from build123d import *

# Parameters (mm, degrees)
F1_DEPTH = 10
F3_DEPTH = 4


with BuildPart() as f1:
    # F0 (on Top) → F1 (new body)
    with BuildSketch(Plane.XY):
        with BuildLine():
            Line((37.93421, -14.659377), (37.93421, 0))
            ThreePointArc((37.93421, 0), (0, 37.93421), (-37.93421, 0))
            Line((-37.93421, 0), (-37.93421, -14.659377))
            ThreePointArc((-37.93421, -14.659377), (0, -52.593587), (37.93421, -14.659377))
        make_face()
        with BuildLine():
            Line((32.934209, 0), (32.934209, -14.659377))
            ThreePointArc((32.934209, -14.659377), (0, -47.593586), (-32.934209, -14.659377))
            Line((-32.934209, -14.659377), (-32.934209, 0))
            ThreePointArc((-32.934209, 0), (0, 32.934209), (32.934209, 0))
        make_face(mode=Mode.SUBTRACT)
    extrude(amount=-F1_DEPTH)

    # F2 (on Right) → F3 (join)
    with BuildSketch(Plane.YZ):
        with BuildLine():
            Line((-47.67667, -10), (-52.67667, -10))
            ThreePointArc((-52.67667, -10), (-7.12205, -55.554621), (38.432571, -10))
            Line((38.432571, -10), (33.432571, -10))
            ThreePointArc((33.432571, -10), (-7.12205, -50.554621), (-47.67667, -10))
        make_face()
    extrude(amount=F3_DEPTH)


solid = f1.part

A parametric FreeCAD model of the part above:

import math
import FreeCAD as App
import Part
import Sketcher

V = App.Vector

doc = App.newDocument("Part")
body = doc.addObject("PartDesign::Body", "Body")

# Sketch on XY plane
sketch1 = doc.addObject("Sketcher::SketchObject", "Sketch")
body.addObject(sketch1)
sketch1.AttachmentSupport = (doc.XY_Plane, [""])
sketch1.MapMode = "FlatFace"
sketch1.addGeometry([
    Part.LineSegment(V(38, -15, 0), V(38, 0, 0)),  # 0
    Part.ArcOfCircle(Part.Circle(V(0, 0, 0), V(0, 0, 1), 38), math.radians(0), math.radians(180)),  # 1
    Part.LineSegment(V(-38, 0, 0), V(-38, -15, 0)),  # 2
    Part.ArcOfCircle(Part.Circle(V(0, -15, 0), V(0, 0, 1), 38), math.radians(180), math.radians(360)),  # 3
    Part.ArcOfCircle(Part.Circle(V(0, 0, 0), V(0, 0, 1), 33), math.radians(0), math.radians(180)),  # 4
    Part.LineSegment(V(33, 0, 0), V(33, -15, 0)),  # 5
    Part.ArcOfCircle(Part.Circle(V(0, -15, 0), V(0, 0, 1), 33), math.radians(180), math.radians(360)),  # 6
    Part.LineSegment(V(-33, -15, 0), V(-33, 0, 0)),  # 7
], False)
sketch1.addConstraint([
    Sketcher.Constraint("Tangent", 0, 2, 1, 1),
    Sketcher.Constraint("Tangent", 1, 2, 2, 1),
    Sketcher.Constraint("Tangent", 2, 2, 3, 1),
    Sketcher.Constraint("Tangent", 3, 2, 0, 1),
    Sketcher.Constraint("Tangent", 4, 1, 5, 1),
    Sketcher.Constraint("Tangent", 5, 2, 6, 2),
    Sketcher.Constraint("Tangent", 6, 1, 7, 1),
    Sketcher.Constraint("Tangent", 7, 2, 4, 2),
    Sketcher.Constraint("Vertical", 0),
    Sketcher.Constraint("Vertical", 2),
    Sketcher.Constraint("Vertical", 5),
    Sketcher.Constraint("Vertical", 7),
    Sketcher.Constraint("Coincident", 1, 3, -1, 1),
    Sketcher.Constraint("Coincident", 4, 3, -1, 1),
    Sketcher.Constraint("Horizontal", 6, 3, 2, 2),
    Sketcher.Constraint("DistanceX", 4, 1, 0, 2, 5.000001),
    Sketcher.Constraint("Radius", 1, 37.93421),
    Sketcher.Constraint("DistanceY", 0, 1, 0, 2, 14.659377),
])
pad1 = doc.addObject("PartDesign::Pad", "Pad")
body.addObject(pad1)
pad1.Profile = sketch1
pad1.Length = 10
pad1.Reversed = True

# Sketch on YZ plane
sketch2 = doc.addObject("Sketcher::SketchObject", "Sketch001")
body.addObject(sketch2)
sketch2.AttachmentSupport = (doc.YZ_Plane, [""])
sketch2.MapMode = "FlatFace"
sketch2.addGeometry([
    Part.LineSegment(V(-48, -10, 0), V(-53, -10, 0)),
    Part.ArcOfCircle(Part.Circle(V(-7, -10, 0), V(0, 0, 1), 46), math.radians(180), math.radians(360)),
    Part.LineSegment(V(38, -10, 0), V(33, -10, 0)),
    Part.ArcOfCircle(Part.Circle(V(-7, -10, 0), V(0, 0, 1), 41), math.radians(180), math.radians(360)),
], False)
sketch2.addConstraint([
    Sketcher.Constraint("Coincident", 0, 2, 1, 1),
    Sketcher.Constraint("Coincident", 1, 2, 2, 1),
    Sketcher.Constraint("Coincident", 2, 2, 3, 2),
    Sketcher.Constraint("Coincident", 3, 1, 0, 1),
    Sketcher.Constraint("Horizontal", 0),
    Sketcher.Constraint("Horizontal", 2),
    Sketcher.Constraint("Coincident", 3, 3, 1, 3),
    Sketcher.Constraint("Horizontal", 3, 3, 0, 2),
    Sketcher.Constraint("Horizontal", 0, 2, 1, 2),
    Sketcher.Constraint("DistanceX", 0, 2, 0, 1, 5.0),
    Sketcher.Constraint("DistanceY", 1, 3, -1, 1, 10.000001),
    Sketcher.Constraint("Radius", 1, 45.55462),
    Sketcher.Constraint("DistanceX", 1, 3, -1, 1, 7.12205),
])
pad2 = doc.addObject("PartDesign::Pad", "Pad001")
body.addObject(pad2)
pad2.Profile = sketch2
pad2.Length = 4

doc.recompute()
